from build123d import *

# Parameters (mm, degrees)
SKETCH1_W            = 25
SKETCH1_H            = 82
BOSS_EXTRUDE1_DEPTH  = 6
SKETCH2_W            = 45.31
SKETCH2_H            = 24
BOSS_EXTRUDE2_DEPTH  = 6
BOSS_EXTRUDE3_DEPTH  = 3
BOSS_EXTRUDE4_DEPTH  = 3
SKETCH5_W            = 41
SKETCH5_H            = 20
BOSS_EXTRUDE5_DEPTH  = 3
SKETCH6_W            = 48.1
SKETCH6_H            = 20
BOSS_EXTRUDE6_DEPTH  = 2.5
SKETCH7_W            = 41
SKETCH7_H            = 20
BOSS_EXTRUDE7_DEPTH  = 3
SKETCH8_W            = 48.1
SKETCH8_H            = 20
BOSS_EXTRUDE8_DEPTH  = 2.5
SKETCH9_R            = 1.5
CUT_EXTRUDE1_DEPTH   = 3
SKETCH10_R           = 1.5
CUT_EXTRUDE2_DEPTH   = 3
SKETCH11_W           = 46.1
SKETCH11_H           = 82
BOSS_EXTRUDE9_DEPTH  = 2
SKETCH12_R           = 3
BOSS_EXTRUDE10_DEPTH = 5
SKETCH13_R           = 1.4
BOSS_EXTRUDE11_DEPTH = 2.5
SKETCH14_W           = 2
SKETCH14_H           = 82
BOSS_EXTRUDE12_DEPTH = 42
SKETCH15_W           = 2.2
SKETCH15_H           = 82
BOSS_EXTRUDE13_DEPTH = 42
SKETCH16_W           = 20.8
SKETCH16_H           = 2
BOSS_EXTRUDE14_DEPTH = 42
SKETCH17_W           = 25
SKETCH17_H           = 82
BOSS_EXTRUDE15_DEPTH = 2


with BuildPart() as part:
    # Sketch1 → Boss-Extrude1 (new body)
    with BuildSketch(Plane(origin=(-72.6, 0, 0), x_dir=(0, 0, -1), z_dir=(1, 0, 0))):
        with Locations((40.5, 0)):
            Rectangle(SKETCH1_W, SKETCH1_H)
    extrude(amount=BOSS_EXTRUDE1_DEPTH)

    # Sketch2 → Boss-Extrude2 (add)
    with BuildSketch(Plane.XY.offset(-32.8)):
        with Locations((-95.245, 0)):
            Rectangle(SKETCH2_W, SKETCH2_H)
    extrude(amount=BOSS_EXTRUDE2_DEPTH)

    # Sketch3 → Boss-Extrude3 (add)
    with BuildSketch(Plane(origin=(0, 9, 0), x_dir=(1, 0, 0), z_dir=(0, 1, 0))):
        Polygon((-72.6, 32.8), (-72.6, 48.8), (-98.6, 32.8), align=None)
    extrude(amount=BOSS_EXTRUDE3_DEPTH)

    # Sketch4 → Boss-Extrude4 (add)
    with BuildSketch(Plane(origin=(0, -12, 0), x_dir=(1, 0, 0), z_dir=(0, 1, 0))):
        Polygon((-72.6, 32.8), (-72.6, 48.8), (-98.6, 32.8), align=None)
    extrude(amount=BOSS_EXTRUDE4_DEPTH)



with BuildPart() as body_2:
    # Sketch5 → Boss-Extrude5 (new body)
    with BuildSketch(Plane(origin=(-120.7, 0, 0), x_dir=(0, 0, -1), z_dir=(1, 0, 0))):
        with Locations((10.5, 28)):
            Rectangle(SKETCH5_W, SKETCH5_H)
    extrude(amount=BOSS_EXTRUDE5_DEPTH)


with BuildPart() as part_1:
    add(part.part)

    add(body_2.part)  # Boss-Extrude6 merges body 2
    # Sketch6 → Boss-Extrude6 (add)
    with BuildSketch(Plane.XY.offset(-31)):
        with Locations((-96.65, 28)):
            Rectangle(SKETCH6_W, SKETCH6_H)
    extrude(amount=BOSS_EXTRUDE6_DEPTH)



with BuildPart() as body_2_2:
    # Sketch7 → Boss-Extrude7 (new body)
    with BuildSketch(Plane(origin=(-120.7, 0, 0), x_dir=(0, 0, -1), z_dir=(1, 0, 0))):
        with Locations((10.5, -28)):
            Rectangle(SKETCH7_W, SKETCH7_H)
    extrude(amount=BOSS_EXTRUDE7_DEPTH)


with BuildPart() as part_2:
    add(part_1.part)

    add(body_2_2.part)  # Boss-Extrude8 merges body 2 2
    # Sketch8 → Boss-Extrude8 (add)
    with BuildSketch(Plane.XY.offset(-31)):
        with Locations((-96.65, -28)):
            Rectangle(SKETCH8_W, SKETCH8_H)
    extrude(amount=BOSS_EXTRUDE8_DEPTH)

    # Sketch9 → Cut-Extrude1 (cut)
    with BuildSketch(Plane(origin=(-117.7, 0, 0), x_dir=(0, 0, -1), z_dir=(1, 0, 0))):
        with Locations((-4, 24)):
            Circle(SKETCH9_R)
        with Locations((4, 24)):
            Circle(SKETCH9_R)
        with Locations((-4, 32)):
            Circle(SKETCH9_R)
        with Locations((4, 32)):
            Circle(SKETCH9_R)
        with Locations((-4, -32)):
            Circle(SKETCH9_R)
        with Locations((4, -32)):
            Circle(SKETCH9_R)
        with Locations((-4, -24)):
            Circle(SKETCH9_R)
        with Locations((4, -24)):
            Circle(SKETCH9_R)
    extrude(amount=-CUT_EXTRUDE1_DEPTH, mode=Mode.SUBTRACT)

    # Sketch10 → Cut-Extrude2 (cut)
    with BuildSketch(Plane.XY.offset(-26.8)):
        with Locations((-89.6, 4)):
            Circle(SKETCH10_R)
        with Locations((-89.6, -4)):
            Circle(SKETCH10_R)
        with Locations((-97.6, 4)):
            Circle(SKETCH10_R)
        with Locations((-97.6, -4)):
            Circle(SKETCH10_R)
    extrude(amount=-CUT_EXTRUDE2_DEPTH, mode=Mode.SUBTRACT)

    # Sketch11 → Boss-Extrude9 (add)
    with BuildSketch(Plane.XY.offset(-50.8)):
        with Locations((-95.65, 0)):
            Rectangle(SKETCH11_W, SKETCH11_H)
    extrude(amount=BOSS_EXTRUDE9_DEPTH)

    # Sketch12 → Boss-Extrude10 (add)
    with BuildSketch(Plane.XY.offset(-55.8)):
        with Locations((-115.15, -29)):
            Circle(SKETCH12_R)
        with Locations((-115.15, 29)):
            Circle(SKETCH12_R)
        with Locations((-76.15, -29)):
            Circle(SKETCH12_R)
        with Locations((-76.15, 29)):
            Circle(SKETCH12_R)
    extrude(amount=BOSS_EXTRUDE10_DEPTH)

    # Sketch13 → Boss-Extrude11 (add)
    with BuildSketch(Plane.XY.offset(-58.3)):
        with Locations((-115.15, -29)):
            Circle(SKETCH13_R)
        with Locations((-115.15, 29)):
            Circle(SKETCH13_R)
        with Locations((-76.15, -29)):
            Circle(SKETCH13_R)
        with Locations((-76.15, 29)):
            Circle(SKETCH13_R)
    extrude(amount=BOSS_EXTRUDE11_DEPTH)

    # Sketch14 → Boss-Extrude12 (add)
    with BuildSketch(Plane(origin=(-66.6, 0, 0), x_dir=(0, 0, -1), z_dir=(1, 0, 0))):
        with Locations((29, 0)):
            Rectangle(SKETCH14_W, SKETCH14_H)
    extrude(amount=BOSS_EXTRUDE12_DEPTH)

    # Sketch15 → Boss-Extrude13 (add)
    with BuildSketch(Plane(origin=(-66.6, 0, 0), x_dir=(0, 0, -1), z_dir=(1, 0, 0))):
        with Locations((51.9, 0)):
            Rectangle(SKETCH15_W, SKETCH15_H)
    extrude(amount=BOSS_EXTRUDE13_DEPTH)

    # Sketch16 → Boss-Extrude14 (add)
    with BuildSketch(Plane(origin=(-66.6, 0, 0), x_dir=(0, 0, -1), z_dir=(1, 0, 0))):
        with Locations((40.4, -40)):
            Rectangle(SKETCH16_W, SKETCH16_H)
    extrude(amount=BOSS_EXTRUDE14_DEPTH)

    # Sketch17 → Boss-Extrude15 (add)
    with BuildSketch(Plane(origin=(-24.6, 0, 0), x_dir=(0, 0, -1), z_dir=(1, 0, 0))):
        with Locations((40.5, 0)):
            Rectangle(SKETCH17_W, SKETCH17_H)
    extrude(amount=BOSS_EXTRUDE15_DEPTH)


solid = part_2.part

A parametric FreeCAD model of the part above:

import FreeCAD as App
import Part
import Sketcher

V = App.Vector
Q = App.Units.Quantity

doc = App.newDocument("Part")
params = doc.addObject("Spreadsheet::Sheet", "Params")
for row, (alias, value) in enumerate([
    ("sketch1_width", "82 mm"),
    ("sketch1_height", "25 mm"),
    ("pad1_length", "6 mm"),
    ("sketch2_height", "24 mm"),
    ("sketch2_width", "45.31 mm"),
    ("pad2_length", "6 mm"),
    ("sketch3_width", "26 mm"),
    ("sketch3_height", "16 mm"),
    ("pad3_length", "3 mm"),
    ("sketch4_width", "26 mm"),
    ("sketch4_height", "16 mm"),
    ("pad4_length", "3 mm"),
    ("sketch5_width", "20 mm"),
    ("sketch5_height", "41 mm"),
    ("pad5_length", "3 mm"),
    ("sketch6_height", "20 mm"),
    ("sketch6_width", "48.1 mm"),
    ("pad6_length", "2.5 mm"),
    ("sketch7_width", "20 mm"),
    ("sketch7_height", "41 mm"),
    ("pad7_length", "3 mm"),
    ("sketch8_height", "20 mm"),
    ("sketch8_width", "48.1 mm"),
    ("pad8_length", "2.5 mm"),
    ("sketch9_diameter", "3 mm"),
    ("pocket1_length", "3 mm"),
    ("sketch10_diameter", "3 mm"),
    ("pocket2_length", "3 mm"),
    ("sketch11_height", "82 mm"),
    ("sketch11_width", "46.1 mm"),
    ("pad9_length", "2 mm"),
    ("sketch12_diameter", "6 mm"),
    ("pad10_length", "5 mm"),
    ("sketch13_diameter", "2.8 mm"),
    ("pad11_length", "2.5 mm"),
    ("sketch14_width", "82 mm"),
    ("sketch14_height", "2 mm"),
    ("pad12_length", "42 mm"),
    ("sketch15_width", "82 mm"),
    ("sketch15_height", "2.2 mm"),
    ("pad13_length", "42 mm"),
    ("sketch16_width", "2 mm"),
    ("sketch16_height", "20.8 mm"),
    ("pad14_length", "42 mm"),
    ("sketch17_width", "82 mm"),
    ("sketch17_height", "25 mm"),
    ("pad15_length", "2 mm"),
], start=1):
    params.set(f"A{row}", alias)
    params.set(f"B{row}", "=" + value)
    params.setAlias(f"B{row}", alias)

body = doc.addObject("PartDesign::Body", "Body")

sketch1 = body.newObject("Sketcher::SketchObject", "Sketch")
sketch1.AttachmentSupport = (doc.getObject("YZ_Plane"), [""])
sketch1.MapMode = "FlatFace"
sketch1.AttachmentOffset = App.Placement(V(0, 0, -72.6), App.Rotation())
sketch1.addGeometry([
    Part.LineSegment(V(41, -28, 0), V(-41, -28, 0)),
    Part.LineSegment(V(-41, -28, 0), V(-41, -53, 0)),
    Part.LineSegment(V(-41, -53, 0), V(41, -53, 0)),
    Part.LineSegment(V(41, -53, 0), V(41, -28, 0)),
], False)
sketch1.addConstraint([
    Sketcher.Constraint("Coincident", 0, 2, 1, 1),
    Sketcher.Constraint("Coincident", 1, 2, 2, 1),
    Sketcher.Constraint("Coincident", 2, 2, 3, 1),
    Sketcher.Constraint("Coincident", 3, 2, 0, 1),
    Sketcher.Constraint("Horizontal", 0),
    Sketcher.Constraint("Vertical", 1),
    Sketcher.Constraint("Horizontal", 2),
    Sketcher.Constraint("Vertical", 3),
    Sketcher.Constraint("DistanceX", 0, 2, 0, 1, Q("82 mm")),
    Sketcher.Constraint("DistanceY", 1, 2, 1, 1, Q("25 mm")),
    Sketcher.Constraint("DistanceX", 0, 2, -1, 1, Q("41 mm")),
    Sketcher.Constraint("DistanceY", 0, 2, -1, 1, Q("28 mm")),
])
sketch1.setExpression("Constraints[8]", "Params.sketch1_width")
sketch1.setExpression("Constraints[9]", "Params.sketch1_height")
pad1 = body.newObject("PartDesign::Pad", "Pad")
pad1.Profile = sketch1
pad1.setExpression("Length", "Params.pad1_length")

sketch2 = body.newObject("Sketcher::SketchObject", "Sketch001")
sketch2.AttachmentSupport = (doc.getObject("XY_Plane"), [""])
sketch2.MapMode = "FlatFace"
sketch2.AttachmentOffset = App.Placement(V(0, 0, -32.8), App.Rotation())
sketch2.addGeometry([
    Part.LineSegment(V(-118, 12, 0), V(-118, -12, 0)),
    Part.LineSegment(V(-118, -12, 0), V(-73, -12, 0)),
    Part.LineSegment(V(-73, -12, 0), V(-73, 12, 0)),
    Part.LineSegment(V(-73, 12, 0), V(-118, 12, 0)),
], False)
sketch2.addConstraint([
    Sketcher.Constraint("Coincident", 0, 2, 1, 1),
    Sketcher.Constraint("Coincident", 1, 2, 2, 1),
    Sketcher.Constraint("Coincident", 2, 2, 3, 1),
    Sketcher.Constraint("Coincident", 3, 2, 0, 1),
    Sketcher.Constraint("Vertical", 0),
    Sketcher.Constraint("Horizontal", 1),
    Sketcher.Constraint("Vertical", 2),
    Sketcher.Constraint("Horizontal", 3),
    Sketcher.Constraint("DistanceY", 0, 2, 0, 1, Q("24 mm")),
    Sketcher.Constraint("DistanceY", 0, 2, -1, 1, Q("12 mm")),
    Sketcher.Constraint("DistanceX", 1, 1, 1, 2, Q("45.31 mm")),
    Sketcher.Constraint("DistanceX", 0, 2, -1, 1, Q("117.9 mm")),
])
sketch2.setExpression("Constraints[8]", "Params.sketch2_height")
sketch2.setExpression("Constraints[10]", "Params.sketch2_width")
pad2 = body.newObject("PartDesign::Pad", "Pad001")
pad2.Profile = sketch2
pad2.setExpression("Length", "Params.pad2_length")

sketch3 = body.newObject("Sketcher::SketchObject", "Sketch002")
sketch3.AttachmentSupport = (doc.getObject("XZ_Plane"), [""])
sketch3.MapMode = "FlatFace"
sketch3.AttachmentOffset = App.Placement(V(0, 0, -9), App.Rotation())
sketch3.addGeometry([
    Part.LineSegment(V(-73, -33, 0), V(-73, -49, 0)),
    Part.LineSegment(V(-73, -49, 0), V(-99, -33, 0)),
    Part.LineSegment(V(-99, -33, 0), V(-73, -33, 0)),
], False)
sketch3.addConstraint([
    Sketcher.Constraint("Coincident", 0, 2, 1, 1),
    Sketcher.Constraint("Coincident", 1, 2, 2, 1),
    Sketcher.Constraint("Coincident", 2, 2, 0, 1),
    Sketcher.Constraint("Vertical", 0),
    Sketcher.Constraint("Horizontal", 2),
    Sketcher.Constraint("DistanceX", 2, 1, 2, 2, Q("26 mm")),
    Sketcher.Constraint("DistanceY", 0, 2, 0, 1, Q("16 mm")),
    Sketcher.Constraint("DistanceX", 0, 2, -1, 1, Q("72.6 mm")),
    Sketcher.Constraint("DistanceY", 0, 2, -1, 1, Q("48.8 mm")),
])
sketch3.setExpression("Constraints[5]", "Params.sketch3_width")
sketch3.setExpression("Constraints[6]", "Params.sketch3_height")
pad3 = body.newObject("PartDesign::Pad", "Pad002")
pad3.Profile = sketch3
pad3.setExpression("Length", "Params.pad3_length")
pad3.Reversed = True

sketch4 = body.newObject("Sketcher::SketchObject", "Sketch003")
sketch4.AttachmentSupport = (doc.getObject("XZ_Plane"), [""])
sketch4.MapMode = "FlatFace"
sketch4.AttachmentOffset = App.Placement(V(0, 0, 12), App.Rotation())
sketch4.addGeometry([
    Part.LineSegment(V(-73, -33, 0), V(-73, -49, 0)),
    Part.LineSegment(V(-73, -49, 0), V(-99, -33, 0)),
    Part.LineSegment(V(-99, -33, 0), V(-73, -33, 0)),
], False)
sketch4.addConstraint([
    Sketcher.Constraint("Coincident", 0, 2, 1, 1),
    Sketcher.Constraint("Coincident", 1, 2, 2, 1),
    Sketcher.Constraint("Coincident", 2, 2, 0, 1),
    Sketcher.Constraint("Vertical", 0),
    Sketcher.Constraint("Horizontal", 2),
    Sketcher.Constraint("DistanceX", 2, 1, 2, 2, Q("26 mm")),
    Sketcher.Constraint("DistanceY", 0, 2, 0, 1, Q("16 mm")),
    Sketcher.Constraint("DistanceX", 0, 2, -1, 1, Q("72.6 mm")),
    Sketcher.Constraint("DistanceY", 0, 2, -1, 1, Q("48.8 mm")),
])
sketch4.setExpression("Constraints[5]", "Params.sketch4_width")
sketch4.setExpression("Constraints[6]", "Params.sketch4_height")
pad4 = body.newObject("PartDesign::Pad", "Pad003")
pad4.Profile = sketch4
pad4.setExpression("Length", "Params.pad4_length")
pad4.Reversed = True
body2 = doc.addObject("PartDesign::Body", "Body001")

sketch5 = body2.newObject("Sketcher::SketchObject", "Sketch004")
sketch5.AttachmentSupport = (doc.getObject("YZ_Plane001"), [""])
sketch5.MapMode = "FlatFace"
sketch5.AttachmentOffset = App.Placement(V(0, 0, -120.7), App.Rotation())
sketch5.addGeometry([
    Part.LineSegment(V(38, 10, 0), V(18, 10, 0)),
    Part.LineSegment(V(18, 10, 0), V(18, -31, 0)),
    Part.LineSegment(V(18, -31, 0), V(38, -31, 0)),
    Part.LineSegment(V(38, -31, 0), V(38, 10, 0)),
], False)
sketch5.addConstraint([
    Sketcher.Constraint("Coincident", 0, 2, 1, 1),
    Sketcher.Constraint("Coincident", 1, 2, 2, 1),
    Sketcher.Constraint("Coincident", 2, 2, 3, 1),
    Sketcher.Constraint("Coincident", 3, 2, 0, 1),
    Sketcher.Constraint("Horizontal", 0),
    Sketcher.Constraint("Vertical", 1),
    Sketcher.Constraint("Horizontal", 2),
    Sketcher.Constraint("Vertical", 3),
    Sketcher.Constraint("DistanceX", 0, 2, 0, 1, Q("20 mm")),
    Sketcher.Constraint("DistanceY", 1, 2, 1, 1, Q("41 mm")),
    Sketcher.Constraint("DistanceX", -1, 1, 0, 2, Q("18 mm")),
    Sketcher.Constraint("DistanceY", -1, 1, 0, 2, Q("10 mm")),
])
sketch5.setExpression("Constraints[8]", "Params.sketch5_width")
sketch5.setExpression("Constraints[9]", "Params.sketch5_height")
pad5 = body2.newObject("PartDesign::Pad", "Pad004")
pad5.Profile = sketch5
pad5.setExpression("Length", "Params.pad5_length")
body.AllowCompound = True
doc.recompute()

boolean = body.newObject("PartDesign::Boolean", "Boolean")
boolean.Type = "Fuse"
boolean.addObjects([body2])

sketch6 = body.newObject("Sketcher::SketchObject", "Sketch005")
sketch6.AttachmentSupport = (doc.getObject("XY_Plane"), [""])
sketch6.MapMode = "FlatFace"
sketch6.AttachmentOffset = App.Placement(V(0, 0, -31), App.Rotation())
sketch6.addGeometry([
    Part.LineSegment(V(-121, 38, 0), V(-121, 18, 0)),
    Part.LineSegment(V(-121, 18, 0), V(-73, 18, 0)),
    Part.LineSegment(V(-73, 18, 0), V(-73, 38, 0)),
    Part.LineSegment(V(-73, 38, 0), V(-121, 38, 0)),
], False)
sketch6.addConstraint([
    Sketcher.Constraint("Coincident", 0, 2, 1, 1),
    Sketcher.Constraint("Coincident", 1, 2, 2, 1),
    Sketcher.Constraint("Coincident", 2, 2, 3, 1),
    Sketcher.Constraint("Coincident", 3, 2, 0, 1),
    Sketcher.Constraint("Vertical", 0),
    Sketcher.Constraint("Horizontal", 1),
    Sketcher.Constraint("Vertical", 2),
    Sketcher.Constraint("Horizontal", 3),
    Sketcher.Constraint("DistanceY", 0, 2, 0, 1, Q("20 mm")),
    Sketcher.Constraint("DistanceX", 1, 1, 1, 2, Q("48.1 mm")),
    Sketcher.Constraint("DistanceY", -1, 1, 0, 2, Q("18 mm")),
    Sketcher.Constraint("DistanceX", 0, 2, -1, 1, Q("120.7 mm")),
])
sketch6.setExpression("Constraints[8]", "Params.sketch6_height")
sketch6.setExpression("Constraints[9]", "Params.sketch6_width")
pad6 = body.newObject("PartDesign::Pad", "Pad005")
pad6.Profile = sketch6
pad6.setExpression("Length", "Params.pad6_length")
body3 = doc.addObject("PartDesign::Body", "Body002")

sketch7 = body3.newObject("Sketcher::SketchObject", "Sketch006")
sketch7.AttachmentSupport = (doc.getObject("YZ_Plane002"), [""])
sketch7.MapMode = "FlatFace"
sketch7.AttachmentOffset = App.Placement(V(0, 0, -120.7), App.Rotation())
sketch7.addGeometry([
    Part.LineSegment(V(-18, 10, 0), V(-38, 10, 0)),
    Part.LineSegment(V(-38, 10, 0), V(-38, -31, 0)),
    Part.LineSegment(V(-38, -31, 0), V(-18, -31, 0)),
    Part.LineSegment(V(-18, -31, 0), V(-18, 10, 0)),
], False)
sketch7.addConstraint([
    Sketcher.Constraint("Coincident", 0, 2, 1, 1),
    Sketcher.Constraint("Coincident", 1, 2, 2, 1),
    Sketcher.Constraint("Coincident", 2, 2, 3, 1),
    Sketcher.Constraint("Coincident", 3, 2, 0, 1),
    Sketcher.Constraint("Horizontal", 0),
    Sketcher.Constraint("Vertical", 1),
    Sketcher.Constraint("Horizontal", 2),
    Sketcher.Constraint("Vertical", 3),
    Sketcher.Constraint("DistanceX", 0, 2, 0, 1, Q("20 mm")),
    Sketcher.Constraint("DistanceY", 1, 2, 1, 1, Q("41 mm")),
    Sketcher.Constraint("DistanceX", 0, 2, -1, 1, Q("38 mm")),
    Sketcher.Constraint("DistanceY", -1, 1, 0, 2, Q("10 mm")),
])
sketch7.setExpression("Constraints[8]", "Params.sketch7_width")
sketch7.setExpression("Constraints[9]", "Params.sketch7_height")
pad7 = body3.newObject("PartDesign::Pad", "Pad006")
pad7.Profile = sketch7
pad7.setExpression("Length", "Params.pad7_length")
body.AllowCompound = True
doc.recompute()

boolean2 = body.newObject("PartDesign::Boolean", "Boolean001")
boolean2.Type = "Fuse"
boolean2.addObjects([body3])

sketch8 = body.newObject("Sketcher::SketchObject", "Sketch007")
sketch8.AttachmentSupport = (doc.getObject("XY_Plane"), [""])
sketch8.MapMode = "FlatFace"
sketch8.AttachmentOffset = App.Placement(V(0, 0, -31), App.Rotation())
sketch8.addGeometry([
    Part.LineSegment(V(-121, -18, 0), V(-121, -38, 0)),
    Part.LineSegment(V(-121, -38, 0), V(-73, -38, 0)),
    Part.LineSegment(V(-73, -38, 0), V(-73, -18, 0)),
    Part.LineSegment(V(-73, -18, 0), V(-121, -18, 0)),
], False)
sketch8.addConstraint([
    Sketcher.Constraint("Coincident", 0, 2, 1, 1),
    Sketcher.Constraint("Coincident", 1, 2, 2, 1),
    Sketcher.Constraint("Coincident", 2, 2, 3, 1),
    Sketcher.Constraint("Coincident", 3, 2, 0, 1),
    Sketcher.Constraint("Vertical", 0),
    Sketcher.Constraint("Horizontal", 1),
    Sketcher.Constraint("Vertical", 2),
    Sketcher.Constraint("Horizontal", 3),
    Sketcher.Constraint("DistanceY", 0, 2, 0, 1, Q("20 mm")),
    Sketcher.Constraint("DistanceX", 1, 1, 1, 2, Q("48.1 mm")),
    Sketcher.Constraint("DistanceY", 0, 2, -1, 1, Q("38 mm")),
    Sketcher.Constraint("DistanceX", 0, 2, -1, 1, Q("120.7 mm")),
])
sketch8.setExpression("Constraints[8]", "Params.sketch8_height")
sketch8.setExpression("Constraints[9]", "Params.sketch8_width")
pad8 = body.newObject("PartDesign::Pad", "Pad007")
pad8.Profile = sketch8
pad8.setExpression("Length", "Params.pad8_length")

sketch9 = body.newObject("Sketcher::SketchObject", "Sketch008")
sketch9.AttachmentSupport = (doc.getObject("YZ_Plane"), [""])
sketch9.MapMode = "FlatFace"
sketch9.AttachmentOffset = App.Placement(V(0, 0, -117.7), App.Rotation())
sketch9.addGeometry([
    Part.Circle(V(24, 4, 0), V(0, 0, 1), 1.5),
    Part.Circle(V(24, -4, 0), V(0, 0, 1), 1.5),
    Part.Circle(V(32, 4, 0), V(0, 0, 1), 1.5),
    Part.Circle(V(32, -4, 0), V(0, 0, 1), 1.5),
    Part.Circle(V(-32, 4, 0), V(0, 0, 1), 1.5),
    Part.Circle(V(-32, -4, 0), V(0, 0, 1), 1.5),
    Part.Circle(V(-24, 4, 0), V(0, 0, 1), 1.5),
    Part.Circle(V(-24, -4, 0), V(0, 0, 1), 1.5),
], False)
sketch9.addConstraint([
    Sketcher.Constraint("Equal", 0, 1),
    Sketcher.Constraint("Equal", 1, 2),
    Sketcher.Constraint("Equal", 2, 3),
    Sketcher.Constraint("Equal", 3, 4),
    Sketcher.Constraint("Equal", 4, 5),
    Sketcher.Constraint("Equal", 5, 6),
    Sketcher.Constraint("Equal", 6, 7),
    Sketcher.Constraint("Symmetric", 3, 3, 4, 3, -1, 1),
    Sketcher.Constraint("Symmetric", 2, 3, 5, 3, -1, 1),
    Sketcher.Constraint("Symmetric", 1, 3, 6, 3, -1, 1),
    Sketcher.Constraint("Symmetric", 0, 3, 7, 3, -1, 1),
    Sketcher.Constraint("Symmetric", 2, 3, 4, 3, -2),
    Sketcher.Constraint("Symmetric", 0, 3, 6, 3, -2),
    Sketcher.Constraint("Horizontal", 0, 3, 2, 3),
    Sketcher.Constraint("Diameter", 0, Q("3 mm")),
    Sketcher.Constraint("DistanceX", -1, 1, 0, 3, Q("24 mm")),
    Sketcher.Constraint("DistanceY", -1, 1, 0, 3, Q("4 mm")),
    Sketcher.Constraint("DistanceX", -1, 1, 2, 3, Q("32 mm")),
])
sketch9.setExpression("Constraints[14]", "Params.sketch9_diameter")
pocket1 = body.newObject("PartDesign::Pocket", "Pocket")
pocket1.Profile = sketch9
pocket1.setExpression("Length", "Params.pocket1_length")

sketch10 = body.newObject("Sketcher::SketchObject", "Sketch009")
sketch10.AttachmentSupport = (doc.getObject("XY_Plane"), [""])
sketch10.MapMode = "FlatFace"
sketch10.AttachmentOffset = App.Placement(V(0, 0, -26.8), App.Rotation())
sketch10.addGeometry([
    Part.Circle(V(-89.6, 4, 0), V(0, 0, 1), 1.5),
    Part.Circle(V(-89.6, -4, 0), V(0, 0, 1), 1.5),
    Part.Circle(V(-97.6, 4, 0), V(0, 0, 1), 1.5),
    Part.Circle(V(-97.6, -4, 0), V(0, 0, 1), 1.5),
], False)
sketch10.addConstraint([
    Sketcher.Constraint("Equal", 0, 1),
    Sketcher.Constraint("Equal", 1, 2),
    Sketcher.Constraint("Equal", 2, 3),
    Sketcher.Constraint("Symmetric", 0, 3, 1, 3, -1),
    Sketcher.Constraint("Symmetric", 2, 3, 3, 3, -1),
    Sketcher.Constraint("Horizontal", 0, 3, 2, 3),
    Sketcher.Constraint("Diameter", 0, Q("3 mm")),
    Sketcher.Constraint("DistanceY", -1, 1, 0, 3, Q("4 mm")),
    Sketcher.Constraint("DistanceX", 2, 3, 0, 3, Q("8 mm")),
    Sketcher.Constraint("DistanceX", 0, 3, -1, 1, Q("89.6 mm")),
])
sketch10.setExpression("Constraints[6]", "Params.sketch10_diameter")
pocket2 = body.newObject("PartDesign::Pocket", "Pocket001")
pocket2.Profile = sketch10
pocket2.setExpression("Length", "Params.pocket2_length")

sketch11 = body.newObject("Sketcher::SketchObject", "Sketch010")
sketch11.AttachmentSupport = (doc.getObject("XY_Plane"), [""])
sketch11.MapMode = "FlatFace"
sketch11.AttachmentOffset = App.Placement(V(0, 0, -50.8), App.Rotation())
sketch11.addGeometry([
    Part.LineSegment(V(-119, 41, 0), V(-119, -41, 0)),
    Part.LineSegment(V(-119, -41, 0), V(-73, -41, 0)),
    Part.LineSegment(V(-73, -41, 0), V(-73, 41, 0)),
    Part.LineSegment(V(-73, 41, 0), V(-119, 41, 0)),
], False)
sketch11.addConstraint([
    Sketcher.Constraint("Coincident", 0, 2, 1, 1),
    Sketcher.Constraint("Coincident", 1, 2, 2, 1),
    Sketcher.Constraint("Coincident", 2, 2, 3, 1),
    Sketcher.Constraint("Coincident", 3, 2, 0, 1),
    Sketcher.Constraint("Vertical", 0),
    Sketcher.Constraint("Horizontal", 1),
    Sketcher.Constraint("Vertical", 2),
    Sketcher.Constraint("Horizontal", 3),
    Sketcher.Constraint("DistanceY", 0, 2, 0, 1, Q("82 mm")),
    Sketcher.Constraint("DistanceX", 1, 1, 1, 2, Q("46.1 mm")),
    Sketcher.Constraint("DistanceY", 0, 2, -1, 1, Q("41 mm")),
    Sketcher.Constraint("DistanceX", 0, 2, -1, 1, Q("118.7 mm")),
])
sketch11.setExpression("Constraints[8]", "Params.sketch11_height")
sketch11.setExpression("Constraints[9]", "Params.sketch11_width")
pad9 = body.newObject("PartDesign::Pad", "Pad008")
pad9.Profile = sketch11
pad9.setExpression("Length", "Params.pad9_length")

sketch12 = body.newObject("Sketcher::SketchObject", "Sketch011")
sketch12.AttachmentSupport = (doc.getObject("XY_Plane"), [""])
sketch12.MapMode = "FlatFace"
sketch12.AttachmentOffset = App.Placement(V(0, 0, -55.8), App.Rotation())
sketch12.addGeometry([
    Part.Circle(V(-115.2, -29, 0), V(0, 0, 1), 3),
    Part.Circle(V(-115.2, 29, 0), V(0, 0, 1), 3),
    Part.Circle(V(-76.2, -29, 0), V(0, 0, 1), 3),
    Part.Circle(V(-76.2, 29, 0), V(0, 0, 1), 3),
], False)
sketch12.addConstraint([
    Sketcher.Constraint("Equal", 0, 1),
    Sketcher.Constraint("Equal", 1, 2),
    Sketcher.Constraint("Equal", 2, 3),
    Sketcher.Constraint("Symmetric", 0, 3, 1, 3, -1),
    Sketcher.Constraint("Symmetric", 2, 3, 3, 3, -1),
    Sketcher.Constraint("Horizontal", 0, 3, 2, 3),
    Sketcher.Constraint("Diameter", 0, Q("6 mm")),
    Sketcher.Constraint("DistanceY", 0, 3, -1, 1, Q("29 mm")),
    Sketcher.Constraint("DistanceX", 0, 3, 2, 3, Q("39 mm")),
    Sketcher.Constraint("DistanceX", 0, 3, -1, 1, Q("115.15 mm")),
])
sketch12.setExpression("Constraints[6]", "Params.sketch12_diameter")
pad10 = body.newObject("PartDesign::Pad", "Pad009")
pad10.Profile = sketch12
pad10.setExpression("Length", "Params.pad10_length")

sketch13 = body.newObject("Sketcher::SketchObject", "Sketch012")
sketch13.AttachmentSupport = (doc.getObject("XY_Plane"), [""])
sketch13.MapMode = "FlatFace"
sketch13.AttachmentOffset = App.Placement(V(0, 0, -58.3), App.Rotation())
sketch13.addGeometry([
    Part.Circle(V(-115.2, -29, 0), V(0, 0, 1), 1.4),
    Part.Circle(V(-115.2, 29, 0), V(0, 0, 1), 1.4),
    Part.Circle(V(-76.2, -29, 0), V(0, 0, 1), 1.4),
    Part.Circle(V(-76.2, 29, 0), V(0, 0, 1), 1.4),
], False)
sketch13.addConstraint([
    Sketcher.Constraint("Equal", 0, 1),
    Sketcher.Constraint("Equal", 1, 2),
    Sketcher.Constraint("Equal", 2, 3),
    Sketcher.Constraint("Symmetric", 0, 3, 1, 3, -1),
    Sketcher.Constraint("Symmetric", 2, 3, 3, 3, -1),
    Sketcher.Constraint("Horizontal", 0, 3, 2, 3),
    Sketcher.Constraint("Diameter", 0, Q("2.8 mm")),
    Sketcher.Constraint("DistanceY", 0, 3, -1, 1, Q("29 mm")),
    Sketcher.Constraint("DistanceX", 0, 3, 2, 3, Q("39 mm")),
    Sketcher.Constraint("DistanceX", 0, 3, -1, 1, Q("115.15 mm")),
])
sketch13.setExpression("Constraints[6]", "Params.sketch13_diameter")
pad11 = body.newObject("PartDesign::Pad", "Pad010")
pad11.Profile = sketch13
pad11.setExpression("Length", "Params.pad11_length")

sketch14 = body.newObject("Sketcher::SketchObject", "Sketch013")
sketch14.AttachmentSupport = (doc.getObject("YZ_Plane"), [""])
sketch14.MapMode = "FlatFace"
sketch14.AttachmentOffset = App.Placement(V(0, 0, -66.6), App.Rotation())
sketch14.addGeometry([
    Part.LineSegment(V(41, -28, 0), V(-41, -28, 0)),
    Part.LineSegment(V(-41, -28, 0), V(-41, -30, 0)),
    Part.LineSegment(V(-41, -30, 0), V(41, -30, 0)),
    Part.LineSegment(V(41, -30, 0), V(41, -28, 0)),
], False)
sketch14.addConstraint([
    Sketcher.Constraint("Coincident", 0, 2, 1, 1),
    Sketcher.Constraint("Coincident", 1, 2, 2, 1),
    Sketcher.Constraint("Coincident", 2, 2, 3, 1),
    Sketcher.Constraint("Coincident", 3, 2, 0, 1),
    Sketcher.Constraint("Horizontal", 0),
    Sketcher.Constraint("Vertical", 1),
    Sketcher.Constraint("Horizontal", 2),
    Sketcher.Constraint("Vertical", 3),
    Sketcher.Constraint("DistanceX", 0, 2, 0, 1, Q("82 mm")),
    Sketcher.Constraint("DistanceY", 1, 2, 1, 1, Q("2 mm")),
    Sketcher.Constraint("DistanceX", 0, 2, -1, 1, Q("41 mm")),
    Sketcher.Constraint("DistanceY", 0, 2, -1, 1, Q("28 mm")),
])
sketch14.setExpression("Constraints[8]", "Params.sketch14_width")
sketch14.setExpression("Constraints[9]", "Params.sketch14_height")
pad12 = body.newObject("PartDesign::Pad", "Pad011")
pad12.Profile = sketch14
pad12.setExpression("Length", "Params.pad12_length")

sketch15 = body.newObject("Sketcher::SketchObject", "Sketch014")
sketch15.AttachmentSupport = (doc.getObject("YZ_Plane"), [""])
sketch15.MapMode = "FlatFace"
sketch15.AttachmentOffset = App.Placement(V(0, 0, -66.6), App.Rotation())
sketch15.addGeometry([
    Part.LineSegment(V(41, -50.8, 0), V(-41, -50.8, 0)),
    Part.LineSegment(V(-41, -50.8, 0), V(-41, -53, 0)),
    Part.LineSegment(V(-41, -53, 0), V(41, -53, 0)),
    Part.LineSegment(V(41, -53, 0), V(41, -50.8, 0)),
], False)
sketch15.addConstraint([
    Sketcher.Constraint("Coincident", 0, 2, 1, 1),
    Sketcher.Constraint("Coincident", 1, 2, 2, 1),
    Sketcher.Constraint("Coincident", 2, 2, 3, 1),
    Sketcher.Constraint("Coincident", 3, 2, 0, 1),
    Sketcher.Constraint("Horizontal", 0),
    Sketcher.Constraint("Vertical", 1),
    Sketcher.Constraint("Horizontal", 2),
    Sketcher.Constraint("Vertical", 3),
    Sketcher.Constraint("DistanceX", 0, 2, 0, 1, Q("82 mm")),
    Sketcher.Constraint("DistanceY", 1, 2, 1, 1, Q("2.2 mm")),
    Sketcher.Constraint("DistanceX", 0, 2, -1, 1, Q("41 mm")),
    Sketcher.Constraint("DistanceY", 1, 2, -1, 1, Q("53 mm")),
])
sketch15.setExpression("Constraints[8]", "Params.sketch15_width")
sketch15.setExpression("Constraints[9]", "Params.sketch15_height")
pad13 = body.newObject("PartDesign::Pad", "Pad012")
pad13.Profile = sketch15
pad13.setExpression("Length", "Params.pad13_length")

sketch16 = body.newObject("Sketcher::SketchObject", "Sketch015")
sketch16.AttachmentSupport = (doc.getObject("YZ_Plane"), [""])
sketch16.MapMode = "FlatFace"
sketch16.AttachmentOffset = App.Placement(V(0, 0, -66.6), App.Rotation())
sketch16.addGeometry([
    Part.LineSegment(V(-39, -30, 0), V(-41, -30, 0)),
    Part.LineSegment(V(-41, -30, 0), V(-41, -50.8, 0)),
    Part.LineSegment(V(-41, -50.8, 0), V(-39, -50.8, 0)),
    Part.LineSegment(V(-39, -50.8, 0), V(-39, -30, 0)),
], False)
sketch16.addConstraint([
    Sketcher.Constraint("Coincident", 0, 2, 1, 1),
    Sketcher.Constraint("Coincident", 1, 2, 2, 1),
    Sketcher.Constraint("Coincident", 2, 2, 3, 1),
    Sketcher.Constraint("Coincident", 3, 2, 0, 1),
    Sketcher.Constraint("Horizontal", 0),
    Sketcher.Constraint("Vertical", 1),
    Sketcher.Constraint("Horizontal", 2),
    Sketcher.Constraint("Vertical", 3),
    Sketcher.Constraint("DistanceX", 0, 2, 0, 1, Q("2 mm")),
    Sketcher.Constraint("DistanceY", 1, 2, 1, 1, Q("20.8 mm")),
    Sketcher.Constraint("DistanceX", 0, 2, -1, 1, Q("41 mm")),
    Sketcher.Constraint("DistanceY", 0, 2, -1, 1, Q("30 mm")),
])
sketch16.setExpression("Constraints[8]", "Params.sketch16_width")
sketch16.setExpression("Constraints[9]", "Params.sketch16_height")
pad14 = body.newObject("PartDesign::Pad", "Pad013")
pad14.Profile = sketch16
pad14.setExpression("Length", "Params.pad14_length")

sketch17 = body.newObject("Sketcher::SketchObject", "Sketch016")
sketch17.AttachmentSupport = (doc.getObject("YZ_Plane"), [""])
sketch17.MapMode = "FlatFace"
sketch17.AttachmentOffset = App.Placement(V(0, 0, -24.6), App.Rotation())
sketch17.addGeometry([
    Part.LineSegment(V(41, -28, 0), V(-41, -28, 0)),
    Part.LineSegment(V(-41, -28, 0), V(-41, -53, 0)),
    Part.LineSegment(V(-41, -53, 0), V(41, -53, 0)),
    Part.LineSegment(V(41, -53, 0), V(41, -28, 0)),
], False)
sketch17.addConstraint([
    Sketcher.Constraint("Coincident", 0, 2, 1, 1),
    Sketcher.Constraint("Coincident", 1, 2, 2, 1),
    Sketcher.Constraint("Coincident", 2, 2, 3, 1),
    Sketcher.Constraint("Coincident", 3, 2, 0, 1),
    Sketcher.Constraint("Horizontal", 0),
    Sketcher.Constraint("Vertical", 1),
    Sketcher.Constraint("Horizontal", 2),
    Sketcher.Constraint("Vertical", 3),
    Sketcher.Constraint("DistanceX", 0, 2, 0, 1, Q("82 mm")),
    Sketcher.Constraint("DistanceY", 1, 2, 1, 1, Q("25 mm")),
    Sketcher.Constraint("DistanceX", 0, 2, -1, 1, Q("41 mm")),
    Sketcher.Constraint("DistanceY", 0, 2, -1, 1, Q("28 mm")),
])
sketch17.setExpression("Constraints[8]", "Params.sketch17_width")
sketch17.setExpression("Constraints[9]", "Params.sketch17_height")
pad15 = body.newObject("PartDesign::Pad", "Pad014")
pad15.Profile = sketch17
pad15.setExpression("Length", "Params.pad15_length")

doc.recompute()
